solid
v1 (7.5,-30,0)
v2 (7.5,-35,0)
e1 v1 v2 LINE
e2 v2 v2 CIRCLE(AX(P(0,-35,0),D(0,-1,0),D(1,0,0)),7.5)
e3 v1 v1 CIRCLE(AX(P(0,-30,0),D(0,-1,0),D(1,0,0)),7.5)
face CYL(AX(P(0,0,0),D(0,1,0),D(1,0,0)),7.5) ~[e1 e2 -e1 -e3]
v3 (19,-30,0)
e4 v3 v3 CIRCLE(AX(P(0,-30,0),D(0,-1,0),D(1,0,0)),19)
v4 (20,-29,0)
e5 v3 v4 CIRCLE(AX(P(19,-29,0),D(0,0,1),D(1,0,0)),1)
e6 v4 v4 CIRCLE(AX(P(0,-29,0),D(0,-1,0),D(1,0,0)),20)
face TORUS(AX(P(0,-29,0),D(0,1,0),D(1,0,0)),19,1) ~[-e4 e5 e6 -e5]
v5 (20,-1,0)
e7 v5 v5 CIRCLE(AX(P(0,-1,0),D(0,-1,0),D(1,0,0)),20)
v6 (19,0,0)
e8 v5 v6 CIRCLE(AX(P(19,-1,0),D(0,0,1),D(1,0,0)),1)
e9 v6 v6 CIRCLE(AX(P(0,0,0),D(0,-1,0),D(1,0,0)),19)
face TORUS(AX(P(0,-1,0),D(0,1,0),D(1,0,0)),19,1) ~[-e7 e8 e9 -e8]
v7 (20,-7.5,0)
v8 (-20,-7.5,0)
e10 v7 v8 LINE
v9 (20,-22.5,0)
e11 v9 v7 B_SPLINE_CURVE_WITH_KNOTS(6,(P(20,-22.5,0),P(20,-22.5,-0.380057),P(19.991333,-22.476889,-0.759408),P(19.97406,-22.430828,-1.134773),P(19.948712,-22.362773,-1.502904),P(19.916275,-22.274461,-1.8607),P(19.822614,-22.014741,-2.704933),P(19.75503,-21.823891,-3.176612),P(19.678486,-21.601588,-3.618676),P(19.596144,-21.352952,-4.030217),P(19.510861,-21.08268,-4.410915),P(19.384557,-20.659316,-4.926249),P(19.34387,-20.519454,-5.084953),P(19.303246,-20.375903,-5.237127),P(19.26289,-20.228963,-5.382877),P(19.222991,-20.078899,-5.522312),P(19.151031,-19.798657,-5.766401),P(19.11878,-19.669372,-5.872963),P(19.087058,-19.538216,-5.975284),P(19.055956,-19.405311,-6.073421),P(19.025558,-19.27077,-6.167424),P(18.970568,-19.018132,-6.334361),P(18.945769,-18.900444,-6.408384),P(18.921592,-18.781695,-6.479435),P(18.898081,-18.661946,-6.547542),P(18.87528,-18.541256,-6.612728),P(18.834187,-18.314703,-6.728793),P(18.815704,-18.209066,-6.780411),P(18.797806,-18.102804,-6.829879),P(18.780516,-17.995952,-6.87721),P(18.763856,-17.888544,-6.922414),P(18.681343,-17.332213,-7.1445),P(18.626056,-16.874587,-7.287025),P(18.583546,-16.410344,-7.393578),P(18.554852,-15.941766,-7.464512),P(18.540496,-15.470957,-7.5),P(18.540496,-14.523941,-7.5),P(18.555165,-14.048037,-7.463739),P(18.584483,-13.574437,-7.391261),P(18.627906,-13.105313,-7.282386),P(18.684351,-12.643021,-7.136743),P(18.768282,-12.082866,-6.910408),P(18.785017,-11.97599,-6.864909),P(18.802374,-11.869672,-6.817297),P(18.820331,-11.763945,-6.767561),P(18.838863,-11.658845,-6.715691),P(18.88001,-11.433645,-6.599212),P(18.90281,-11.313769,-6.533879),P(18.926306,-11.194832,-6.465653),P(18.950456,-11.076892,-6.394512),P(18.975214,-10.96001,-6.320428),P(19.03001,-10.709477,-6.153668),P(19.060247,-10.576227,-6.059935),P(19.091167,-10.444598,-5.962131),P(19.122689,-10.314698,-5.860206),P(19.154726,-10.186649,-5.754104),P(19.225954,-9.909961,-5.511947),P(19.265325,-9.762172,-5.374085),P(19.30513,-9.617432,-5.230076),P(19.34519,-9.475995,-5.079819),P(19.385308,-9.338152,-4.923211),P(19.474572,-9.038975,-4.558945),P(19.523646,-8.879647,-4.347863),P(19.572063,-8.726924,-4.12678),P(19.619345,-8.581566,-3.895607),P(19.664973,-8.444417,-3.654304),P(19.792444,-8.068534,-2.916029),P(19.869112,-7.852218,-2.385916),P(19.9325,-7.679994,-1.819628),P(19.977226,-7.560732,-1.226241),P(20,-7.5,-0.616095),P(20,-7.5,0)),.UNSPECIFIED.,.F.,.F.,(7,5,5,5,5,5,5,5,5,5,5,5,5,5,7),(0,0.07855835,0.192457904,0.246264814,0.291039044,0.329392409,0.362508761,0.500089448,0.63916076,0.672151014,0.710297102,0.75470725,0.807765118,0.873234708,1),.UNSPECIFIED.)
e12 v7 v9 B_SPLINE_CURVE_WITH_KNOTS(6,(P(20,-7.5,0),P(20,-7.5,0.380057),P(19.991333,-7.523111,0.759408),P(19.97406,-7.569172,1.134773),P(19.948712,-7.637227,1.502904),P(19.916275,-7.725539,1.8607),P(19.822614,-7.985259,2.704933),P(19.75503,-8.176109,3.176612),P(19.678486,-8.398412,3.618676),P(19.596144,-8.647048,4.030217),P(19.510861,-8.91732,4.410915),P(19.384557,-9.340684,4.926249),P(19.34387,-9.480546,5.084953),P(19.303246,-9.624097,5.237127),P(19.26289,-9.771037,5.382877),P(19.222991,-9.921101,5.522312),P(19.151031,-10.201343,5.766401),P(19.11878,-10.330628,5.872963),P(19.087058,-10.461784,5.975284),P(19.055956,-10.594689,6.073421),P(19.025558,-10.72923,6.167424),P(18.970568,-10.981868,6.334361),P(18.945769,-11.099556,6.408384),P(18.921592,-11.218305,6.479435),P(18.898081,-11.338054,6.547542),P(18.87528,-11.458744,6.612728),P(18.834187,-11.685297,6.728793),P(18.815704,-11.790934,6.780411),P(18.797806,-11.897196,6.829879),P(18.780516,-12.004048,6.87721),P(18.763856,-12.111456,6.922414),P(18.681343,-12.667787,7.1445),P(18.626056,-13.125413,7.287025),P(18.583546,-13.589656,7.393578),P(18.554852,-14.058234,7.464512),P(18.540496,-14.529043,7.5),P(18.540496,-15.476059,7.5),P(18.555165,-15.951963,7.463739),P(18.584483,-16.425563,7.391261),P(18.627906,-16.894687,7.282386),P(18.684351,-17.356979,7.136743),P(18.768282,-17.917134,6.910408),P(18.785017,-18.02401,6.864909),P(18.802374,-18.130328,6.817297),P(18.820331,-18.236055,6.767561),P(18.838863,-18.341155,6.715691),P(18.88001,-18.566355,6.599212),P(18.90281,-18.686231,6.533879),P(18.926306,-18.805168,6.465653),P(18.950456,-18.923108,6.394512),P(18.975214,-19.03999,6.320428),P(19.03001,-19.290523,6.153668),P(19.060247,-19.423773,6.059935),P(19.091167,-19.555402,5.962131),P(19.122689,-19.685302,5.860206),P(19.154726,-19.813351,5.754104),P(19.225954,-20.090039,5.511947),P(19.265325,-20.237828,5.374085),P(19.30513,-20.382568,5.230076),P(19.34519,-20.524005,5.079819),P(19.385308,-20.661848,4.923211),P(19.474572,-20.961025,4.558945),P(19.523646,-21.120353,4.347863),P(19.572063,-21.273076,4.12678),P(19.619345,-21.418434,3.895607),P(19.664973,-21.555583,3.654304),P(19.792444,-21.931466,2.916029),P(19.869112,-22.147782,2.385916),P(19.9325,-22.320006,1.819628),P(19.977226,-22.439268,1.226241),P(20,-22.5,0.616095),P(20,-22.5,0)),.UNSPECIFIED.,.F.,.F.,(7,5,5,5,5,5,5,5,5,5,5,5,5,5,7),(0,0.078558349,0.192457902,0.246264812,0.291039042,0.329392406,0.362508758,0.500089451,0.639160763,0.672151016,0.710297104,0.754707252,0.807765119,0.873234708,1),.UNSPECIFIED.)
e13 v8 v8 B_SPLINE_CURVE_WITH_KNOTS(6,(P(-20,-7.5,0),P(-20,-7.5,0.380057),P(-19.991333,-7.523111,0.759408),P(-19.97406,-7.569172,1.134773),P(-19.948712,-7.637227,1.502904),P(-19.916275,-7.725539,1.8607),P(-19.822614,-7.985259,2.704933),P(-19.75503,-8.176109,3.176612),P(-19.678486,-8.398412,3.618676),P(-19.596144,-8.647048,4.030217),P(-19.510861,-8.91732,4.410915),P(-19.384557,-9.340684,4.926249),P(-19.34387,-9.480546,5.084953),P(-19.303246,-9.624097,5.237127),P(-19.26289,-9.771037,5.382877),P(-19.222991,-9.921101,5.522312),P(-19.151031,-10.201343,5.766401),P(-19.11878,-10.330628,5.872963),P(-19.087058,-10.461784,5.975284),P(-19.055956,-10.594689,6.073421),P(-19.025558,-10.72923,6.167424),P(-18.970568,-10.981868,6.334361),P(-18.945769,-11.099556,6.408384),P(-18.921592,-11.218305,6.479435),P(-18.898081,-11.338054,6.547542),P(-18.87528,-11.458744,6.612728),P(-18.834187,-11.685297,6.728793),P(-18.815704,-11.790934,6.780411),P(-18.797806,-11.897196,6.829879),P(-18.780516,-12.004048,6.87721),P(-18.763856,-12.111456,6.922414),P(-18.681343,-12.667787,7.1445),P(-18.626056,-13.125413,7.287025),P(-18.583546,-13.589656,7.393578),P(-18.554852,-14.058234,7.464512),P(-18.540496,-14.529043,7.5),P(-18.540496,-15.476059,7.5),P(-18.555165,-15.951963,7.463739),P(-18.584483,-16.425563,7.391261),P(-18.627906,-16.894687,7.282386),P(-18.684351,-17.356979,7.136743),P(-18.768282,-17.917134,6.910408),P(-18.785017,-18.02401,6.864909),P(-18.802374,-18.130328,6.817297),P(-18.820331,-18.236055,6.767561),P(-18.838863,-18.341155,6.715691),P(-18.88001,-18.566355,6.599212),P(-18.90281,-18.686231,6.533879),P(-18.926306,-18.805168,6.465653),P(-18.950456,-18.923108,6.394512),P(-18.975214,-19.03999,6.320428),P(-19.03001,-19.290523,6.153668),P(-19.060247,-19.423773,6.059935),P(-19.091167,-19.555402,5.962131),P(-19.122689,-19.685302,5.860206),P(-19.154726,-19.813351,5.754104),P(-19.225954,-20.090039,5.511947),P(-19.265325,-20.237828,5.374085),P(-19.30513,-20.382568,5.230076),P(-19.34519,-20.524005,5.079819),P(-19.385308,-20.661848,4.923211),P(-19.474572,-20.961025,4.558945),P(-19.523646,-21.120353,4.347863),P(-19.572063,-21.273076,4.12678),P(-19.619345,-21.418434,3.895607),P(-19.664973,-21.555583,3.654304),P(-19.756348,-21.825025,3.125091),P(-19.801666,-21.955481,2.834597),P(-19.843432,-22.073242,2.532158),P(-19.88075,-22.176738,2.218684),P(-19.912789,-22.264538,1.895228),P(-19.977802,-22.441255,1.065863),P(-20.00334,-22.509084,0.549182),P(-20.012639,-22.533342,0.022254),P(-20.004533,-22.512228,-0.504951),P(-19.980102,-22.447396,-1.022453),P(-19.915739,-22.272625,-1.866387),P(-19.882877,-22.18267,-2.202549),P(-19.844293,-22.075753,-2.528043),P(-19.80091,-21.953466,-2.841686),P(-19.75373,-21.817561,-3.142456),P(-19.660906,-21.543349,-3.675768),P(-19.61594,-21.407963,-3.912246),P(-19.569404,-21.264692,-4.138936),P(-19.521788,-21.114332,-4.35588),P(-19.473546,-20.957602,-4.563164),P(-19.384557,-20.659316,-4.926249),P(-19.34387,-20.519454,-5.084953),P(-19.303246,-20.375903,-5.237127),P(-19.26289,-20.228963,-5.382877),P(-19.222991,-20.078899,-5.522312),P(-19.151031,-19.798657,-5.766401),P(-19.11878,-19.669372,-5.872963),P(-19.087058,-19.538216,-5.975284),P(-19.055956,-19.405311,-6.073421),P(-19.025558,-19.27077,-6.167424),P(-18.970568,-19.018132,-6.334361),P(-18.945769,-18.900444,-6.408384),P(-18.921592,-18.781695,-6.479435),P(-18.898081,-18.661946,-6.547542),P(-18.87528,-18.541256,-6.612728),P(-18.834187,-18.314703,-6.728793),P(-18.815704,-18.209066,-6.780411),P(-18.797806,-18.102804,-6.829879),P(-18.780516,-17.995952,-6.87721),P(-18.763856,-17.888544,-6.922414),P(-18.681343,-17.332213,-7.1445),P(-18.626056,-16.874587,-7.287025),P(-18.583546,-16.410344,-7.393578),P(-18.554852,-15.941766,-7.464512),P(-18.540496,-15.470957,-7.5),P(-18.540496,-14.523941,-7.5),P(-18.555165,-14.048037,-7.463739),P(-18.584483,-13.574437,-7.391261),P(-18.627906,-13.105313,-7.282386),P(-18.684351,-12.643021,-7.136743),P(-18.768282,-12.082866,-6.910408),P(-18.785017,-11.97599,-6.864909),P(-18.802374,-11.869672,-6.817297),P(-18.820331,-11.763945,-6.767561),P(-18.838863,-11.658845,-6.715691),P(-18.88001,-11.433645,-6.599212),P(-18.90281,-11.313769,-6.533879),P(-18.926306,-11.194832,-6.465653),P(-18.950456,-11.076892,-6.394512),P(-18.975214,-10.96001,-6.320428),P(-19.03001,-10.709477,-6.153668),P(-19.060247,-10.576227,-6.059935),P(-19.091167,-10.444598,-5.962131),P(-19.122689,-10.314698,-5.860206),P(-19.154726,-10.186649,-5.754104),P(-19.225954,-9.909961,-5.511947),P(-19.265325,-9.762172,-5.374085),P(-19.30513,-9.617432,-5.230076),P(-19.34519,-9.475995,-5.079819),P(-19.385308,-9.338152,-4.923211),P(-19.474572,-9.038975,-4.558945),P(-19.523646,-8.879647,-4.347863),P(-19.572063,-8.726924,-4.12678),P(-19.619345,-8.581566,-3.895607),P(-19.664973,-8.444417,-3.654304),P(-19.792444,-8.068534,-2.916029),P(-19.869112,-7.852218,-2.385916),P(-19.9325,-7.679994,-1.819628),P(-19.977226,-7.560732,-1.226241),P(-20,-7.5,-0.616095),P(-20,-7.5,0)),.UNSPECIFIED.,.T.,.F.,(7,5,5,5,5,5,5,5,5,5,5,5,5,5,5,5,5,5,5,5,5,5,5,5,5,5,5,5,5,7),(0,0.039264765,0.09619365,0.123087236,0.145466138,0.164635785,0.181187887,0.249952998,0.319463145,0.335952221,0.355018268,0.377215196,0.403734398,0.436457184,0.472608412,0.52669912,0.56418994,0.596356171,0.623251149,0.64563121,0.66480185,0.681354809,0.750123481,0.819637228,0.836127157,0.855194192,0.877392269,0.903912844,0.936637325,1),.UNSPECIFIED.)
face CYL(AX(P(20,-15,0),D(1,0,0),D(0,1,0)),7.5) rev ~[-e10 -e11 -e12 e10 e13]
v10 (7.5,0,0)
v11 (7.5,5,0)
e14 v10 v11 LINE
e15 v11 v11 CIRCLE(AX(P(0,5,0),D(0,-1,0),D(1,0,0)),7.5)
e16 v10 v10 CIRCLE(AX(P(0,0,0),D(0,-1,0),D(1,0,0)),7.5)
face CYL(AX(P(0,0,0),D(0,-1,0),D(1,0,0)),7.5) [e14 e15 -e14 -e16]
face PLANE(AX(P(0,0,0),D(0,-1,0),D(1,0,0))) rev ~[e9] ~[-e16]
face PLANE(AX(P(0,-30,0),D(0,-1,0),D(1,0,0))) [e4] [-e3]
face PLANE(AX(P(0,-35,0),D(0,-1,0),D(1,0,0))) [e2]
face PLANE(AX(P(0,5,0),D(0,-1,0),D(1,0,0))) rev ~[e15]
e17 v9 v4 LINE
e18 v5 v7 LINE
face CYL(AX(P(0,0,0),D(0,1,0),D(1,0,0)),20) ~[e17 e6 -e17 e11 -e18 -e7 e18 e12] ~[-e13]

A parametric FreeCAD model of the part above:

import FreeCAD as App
import Part
import Sketcher

V = App.Vector


def edges_at(feature, points):
    """Names of the edges that pass closest to the given points."""
    edges = feature.Shape.Edges
    near = lambda p: min(range(len(edges)), key=lambda i: edges[i].distToShape(Part.Vertex(*p))[0])
    return sorted({f"Edge{near(p) + 1}" for p in points})

doc = App.newDocument("Part")
body = doc.addObject("PartDesign::Body", "Body")

sketch1 = doc.addObject("Sketcher::SketchObject", "Sketch")
body.addObject(sketch1)
sketch1.AttachmentSupport = (doc.XZ_Plane, [""])
sketch1.MapMode = "FlatFace"
sketch1.addGeometry([
    Part.Circle(V(0, 0, 0), V(0, 0, 1), 20),
    Part.Circle(V(0, 0, 0), V(0, 0, 1), 8),
], False)
sketch1.addConstraint([
    Sketcher.Constraint("Coincident", 0, 3, -1, 1),
    Sketcher.Constraint("Coincident", 1, 3, -1, 1),
    Sketcher.Constraint("Diameter", 0, 40.0),
    Sketcher.Constraint("Diameter", 1, 15.0),
])
pad1 = doc.addObject("PartDesign::Pad", "Pad")
body.addObject(pad1)
pad1.Profile = sketch1
pad1.Length = 30

sketch2 = doc.addObject("Sketcher::SketchObject", "Sketch001")
body.addObject(sketch2)
sketch2.AttachmentSupport = (doc.XZ_Plane, [""])
sketch2.MapMode = "FlatFace"
sketch2.addGeometry(Part.Circle(V(0, 0, 0), V(0, 0, 1), 8), False)
sketch2.addConstraint([
    Sketcher.Constraint("Coincident", 0, 3, -1, 1),
    Sketcher.Constraint("Diameter", 0, 15.0),
])
pad2 = doc.addObject("PartDesign::Pad", "Pad001")
body.addObject(pad2)
pad2.Profile = sketch2
pad2.Type = "TwoLengths"
pad2.Length = 35
pad2.Length2 = 5

sketch3 = doc.addObject("Sketcher::SketchObject", "Sketch002")
body.addObject(sketch3)
sketch3.AttachmentSupport = (doc.YZ_Plane, [""])
sketch3.MapMode = "FlatFace"
sketch3.AttachmentOffset = App.Placement(V(0, 0, 20), App.Rotation())
sketch3.addGeometry(Part.Circle(V(-15, 0, 0), V(0, 0, 1), 8), False)
sketch3.addConstraint([
    Sketcher.Constraint("PointOnObject", 0, 3, -1),
    Sketcher.Constraint("Diameter", 0, 15.0),
    Sketcher.Constraint("DistanceX", 0, 3, -1, 1, 15.0),
])
pocket1 = doc.addObject("PartDesign::Pocket", "Pocket")
body.addObject(pocket1)
pocket1.Profile = sketch3
pocket1.Type = "ThroughAll"
doc.recompute()

fillet = doc.addObject("PartDesign::Fillet", "Fillet")
body.addObject(fillet)
fillet.Base = (pocket1, edges_at(pocket1, [(-20, -30, 0), (-20, 0, 0)]))
fillet.Radius = 1

doc.recompute()
